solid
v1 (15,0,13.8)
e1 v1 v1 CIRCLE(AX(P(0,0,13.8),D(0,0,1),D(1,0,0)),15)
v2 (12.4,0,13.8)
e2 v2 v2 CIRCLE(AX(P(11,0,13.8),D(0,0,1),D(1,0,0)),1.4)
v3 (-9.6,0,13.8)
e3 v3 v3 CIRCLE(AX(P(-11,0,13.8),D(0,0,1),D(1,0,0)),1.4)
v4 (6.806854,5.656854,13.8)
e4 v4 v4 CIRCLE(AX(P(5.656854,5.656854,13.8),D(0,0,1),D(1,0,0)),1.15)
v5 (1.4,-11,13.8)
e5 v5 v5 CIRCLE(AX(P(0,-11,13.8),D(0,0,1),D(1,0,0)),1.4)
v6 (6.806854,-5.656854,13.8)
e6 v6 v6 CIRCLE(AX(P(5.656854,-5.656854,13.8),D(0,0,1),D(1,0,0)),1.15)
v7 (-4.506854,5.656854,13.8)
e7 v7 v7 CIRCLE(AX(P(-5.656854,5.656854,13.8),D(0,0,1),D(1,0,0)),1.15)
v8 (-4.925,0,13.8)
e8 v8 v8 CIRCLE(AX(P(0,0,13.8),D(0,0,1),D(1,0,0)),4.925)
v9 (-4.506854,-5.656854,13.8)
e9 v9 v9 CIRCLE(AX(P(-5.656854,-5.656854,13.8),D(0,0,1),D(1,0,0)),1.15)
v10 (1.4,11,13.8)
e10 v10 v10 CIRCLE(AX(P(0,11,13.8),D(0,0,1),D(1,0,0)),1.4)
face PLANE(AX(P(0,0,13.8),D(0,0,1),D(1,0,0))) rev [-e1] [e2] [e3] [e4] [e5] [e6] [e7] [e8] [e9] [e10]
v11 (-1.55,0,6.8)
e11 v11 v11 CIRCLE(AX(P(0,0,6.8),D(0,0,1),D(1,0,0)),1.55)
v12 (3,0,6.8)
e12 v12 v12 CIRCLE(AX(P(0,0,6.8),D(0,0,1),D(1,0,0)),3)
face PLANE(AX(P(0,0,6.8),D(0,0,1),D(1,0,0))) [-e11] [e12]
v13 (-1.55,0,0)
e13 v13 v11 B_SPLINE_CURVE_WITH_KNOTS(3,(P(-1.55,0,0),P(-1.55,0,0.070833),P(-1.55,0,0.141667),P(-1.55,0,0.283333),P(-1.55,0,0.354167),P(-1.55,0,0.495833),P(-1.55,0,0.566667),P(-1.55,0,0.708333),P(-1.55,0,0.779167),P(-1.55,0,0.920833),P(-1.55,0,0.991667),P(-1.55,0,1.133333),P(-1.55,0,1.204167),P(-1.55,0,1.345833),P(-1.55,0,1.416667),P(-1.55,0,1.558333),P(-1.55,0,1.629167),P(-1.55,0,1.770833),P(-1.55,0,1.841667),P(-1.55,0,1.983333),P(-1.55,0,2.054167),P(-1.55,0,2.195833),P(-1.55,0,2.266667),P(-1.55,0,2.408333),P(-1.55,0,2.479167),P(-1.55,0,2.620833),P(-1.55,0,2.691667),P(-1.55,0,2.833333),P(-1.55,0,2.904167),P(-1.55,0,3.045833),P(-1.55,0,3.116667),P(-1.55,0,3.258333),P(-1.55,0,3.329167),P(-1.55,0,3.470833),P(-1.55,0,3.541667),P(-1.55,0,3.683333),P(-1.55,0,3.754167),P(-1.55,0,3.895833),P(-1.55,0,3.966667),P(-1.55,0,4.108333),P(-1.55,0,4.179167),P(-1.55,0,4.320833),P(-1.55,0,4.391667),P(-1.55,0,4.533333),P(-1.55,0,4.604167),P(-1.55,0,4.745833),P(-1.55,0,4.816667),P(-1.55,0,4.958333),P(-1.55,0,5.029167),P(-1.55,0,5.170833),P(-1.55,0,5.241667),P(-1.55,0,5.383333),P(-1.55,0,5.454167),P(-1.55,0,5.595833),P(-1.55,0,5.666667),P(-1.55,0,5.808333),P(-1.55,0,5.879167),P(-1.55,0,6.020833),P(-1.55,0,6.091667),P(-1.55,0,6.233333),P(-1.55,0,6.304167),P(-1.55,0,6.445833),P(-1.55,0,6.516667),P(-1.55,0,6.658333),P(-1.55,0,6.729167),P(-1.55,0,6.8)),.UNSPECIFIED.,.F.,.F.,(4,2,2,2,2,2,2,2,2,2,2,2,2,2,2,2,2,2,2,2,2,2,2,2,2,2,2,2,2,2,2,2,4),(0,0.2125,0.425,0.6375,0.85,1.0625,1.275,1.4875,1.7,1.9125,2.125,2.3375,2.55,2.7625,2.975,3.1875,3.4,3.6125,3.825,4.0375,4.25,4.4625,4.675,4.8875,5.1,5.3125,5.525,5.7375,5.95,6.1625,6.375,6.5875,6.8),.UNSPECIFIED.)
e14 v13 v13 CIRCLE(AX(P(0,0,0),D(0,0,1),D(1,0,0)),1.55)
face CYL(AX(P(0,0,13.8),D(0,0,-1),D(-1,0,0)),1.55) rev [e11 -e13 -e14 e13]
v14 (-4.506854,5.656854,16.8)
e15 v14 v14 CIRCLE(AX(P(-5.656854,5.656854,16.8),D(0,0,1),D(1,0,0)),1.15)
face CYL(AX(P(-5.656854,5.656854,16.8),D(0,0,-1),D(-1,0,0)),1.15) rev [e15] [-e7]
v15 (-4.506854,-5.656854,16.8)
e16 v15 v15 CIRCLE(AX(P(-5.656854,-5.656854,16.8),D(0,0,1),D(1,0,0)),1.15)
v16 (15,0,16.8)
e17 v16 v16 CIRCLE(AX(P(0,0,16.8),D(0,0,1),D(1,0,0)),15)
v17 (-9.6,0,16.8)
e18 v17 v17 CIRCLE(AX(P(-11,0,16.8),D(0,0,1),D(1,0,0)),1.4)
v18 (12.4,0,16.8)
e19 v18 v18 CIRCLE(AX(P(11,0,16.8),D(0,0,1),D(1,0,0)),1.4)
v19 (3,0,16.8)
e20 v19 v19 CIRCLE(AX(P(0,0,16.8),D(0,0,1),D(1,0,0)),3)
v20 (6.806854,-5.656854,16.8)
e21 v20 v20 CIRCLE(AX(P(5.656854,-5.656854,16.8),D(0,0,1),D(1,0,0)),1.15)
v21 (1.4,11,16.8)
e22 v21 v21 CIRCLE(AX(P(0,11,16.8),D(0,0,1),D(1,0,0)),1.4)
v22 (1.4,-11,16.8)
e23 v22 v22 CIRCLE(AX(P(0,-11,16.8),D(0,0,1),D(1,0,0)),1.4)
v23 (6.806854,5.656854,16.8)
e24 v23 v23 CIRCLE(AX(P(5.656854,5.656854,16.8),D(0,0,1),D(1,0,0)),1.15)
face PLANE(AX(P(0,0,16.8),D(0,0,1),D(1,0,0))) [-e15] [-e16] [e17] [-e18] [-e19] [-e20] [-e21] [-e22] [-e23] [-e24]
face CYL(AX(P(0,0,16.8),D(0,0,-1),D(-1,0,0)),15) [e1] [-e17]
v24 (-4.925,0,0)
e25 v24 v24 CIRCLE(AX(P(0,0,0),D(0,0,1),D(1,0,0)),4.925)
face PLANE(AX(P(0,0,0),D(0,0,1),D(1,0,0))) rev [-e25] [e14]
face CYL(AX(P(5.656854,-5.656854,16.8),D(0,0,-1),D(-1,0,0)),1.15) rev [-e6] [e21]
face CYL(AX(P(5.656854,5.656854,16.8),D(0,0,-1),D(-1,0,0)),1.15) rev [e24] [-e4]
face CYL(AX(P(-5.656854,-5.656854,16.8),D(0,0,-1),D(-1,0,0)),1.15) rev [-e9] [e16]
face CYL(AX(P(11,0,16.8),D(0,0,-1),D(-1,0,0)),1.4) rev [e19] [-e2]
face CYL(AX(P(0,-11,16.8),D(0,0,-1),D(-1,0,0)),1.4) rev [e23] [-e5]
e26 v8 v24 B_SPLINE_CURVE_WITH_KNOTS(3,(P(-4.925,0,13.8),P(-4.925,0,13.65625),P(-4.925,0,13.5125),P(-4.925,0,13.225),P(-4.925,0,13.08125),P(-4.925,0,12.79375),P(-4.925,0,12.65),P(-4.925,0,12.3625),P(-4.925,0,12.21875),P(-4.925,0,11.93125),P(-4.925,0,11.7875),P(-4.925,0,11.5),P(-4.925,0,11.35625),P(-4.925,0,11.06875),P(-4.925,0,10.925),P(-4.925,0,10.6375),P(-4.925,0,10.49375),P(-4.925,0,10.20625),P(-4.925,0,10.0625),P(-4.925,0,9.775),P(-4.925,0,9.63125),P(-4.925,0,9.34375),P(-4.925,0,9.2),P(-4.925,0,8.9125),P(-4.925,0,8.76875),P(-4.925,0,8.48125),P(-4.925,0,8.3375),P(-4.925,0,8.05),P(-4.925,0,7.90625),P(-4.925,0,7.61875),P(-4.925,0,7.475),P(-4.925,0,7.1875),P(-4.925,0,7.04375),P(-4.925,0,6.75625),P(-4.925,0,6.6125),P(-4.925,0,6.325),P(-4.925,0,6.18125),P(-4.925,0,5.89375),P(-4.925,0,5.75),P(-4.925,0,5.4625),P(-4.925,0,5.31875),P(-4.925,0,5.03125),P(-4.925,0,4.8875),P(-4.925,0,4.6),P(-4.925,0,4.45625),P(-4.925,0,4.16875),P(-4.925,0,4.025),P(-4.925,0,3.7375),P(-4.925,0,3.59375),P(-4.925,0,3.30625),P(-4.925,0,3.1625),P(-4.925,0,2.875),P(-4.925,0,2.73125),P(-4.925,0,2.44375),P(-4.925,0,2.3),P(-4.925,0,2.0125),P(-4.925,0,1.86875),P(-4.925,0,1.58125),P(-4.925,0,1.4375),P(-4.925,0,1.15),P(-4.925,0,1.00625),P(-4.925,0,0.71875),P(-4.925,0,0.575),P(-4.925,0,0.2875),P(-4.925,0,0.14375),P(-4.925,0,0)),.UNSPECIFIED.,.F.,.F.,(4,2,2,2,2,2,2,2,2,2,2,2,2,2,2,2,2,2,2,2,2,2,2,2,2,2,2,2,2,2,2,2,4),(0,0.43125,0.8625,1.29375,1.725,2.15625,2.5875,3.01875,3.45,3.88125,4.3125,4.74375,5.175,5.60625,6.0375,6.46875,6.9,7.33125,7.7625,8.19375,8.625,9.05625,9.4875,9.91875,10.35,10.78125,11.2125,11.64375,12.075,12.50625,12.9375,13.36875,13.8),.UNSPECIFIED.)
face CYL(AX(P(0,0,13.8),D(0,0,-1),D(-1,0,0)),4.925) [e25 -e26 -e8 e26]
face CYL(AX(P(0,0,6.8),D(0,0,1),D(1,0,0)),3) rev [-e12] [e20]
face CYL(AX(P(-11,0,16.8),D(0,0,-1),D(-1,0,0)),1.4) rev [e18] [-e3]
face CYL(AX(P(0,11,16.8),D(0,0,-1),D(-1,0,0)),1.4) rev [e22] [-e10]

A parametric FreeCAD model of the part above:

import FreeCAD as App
import Part
import Sketcher
Q = App.Units.Quantity

doc = App.newDocument("Part")
body = doc.addObject("PartDesign::Body", "Body")

# Sketch on XY plane
sketch1 = body.newObject("Sketcher::SketchObject", "Sketch")
sketch1.AttachmentSupport = (doc.getObject("XY_Plane"), [""])
sketch1.MapMode = "FlatFace"
sketch1.addGeometry([
    Part.Circle(App.Vector(0, 0, 0), App.Vector(0, 0, 1), 4.9),
    Part.Circle(App.Vector(0, 0, 0), App.Vector(0, 0, 1), 1.6),
], False)
sketch1.addConstraint([
    Sketcher.Constraint("Coincident", 0, 3, -1, 1),
    Sketcher.Constraint("Coincident", 1, 3, -1, 1),
    Sketcher.Constraint("Diameter", 1, Q("3.1 mm")),
    Sketcher.Constraint("Diameter", 0, Q("9.85 mm")),
])
pad1 = body.newObject("PartDesign::Pad", "Pad")
pad1.Profile = sketch1
pad1.Length = 13.8

# Sketch on XY plane
sketch2 = body.newObject("Sketcher::SketchObject", "Sketch001")
sketch2.AttachmentSupport = (doc.getObject("XY_Plane"), [""])
sketch2.MapMode = "FlatFace"
sketch2.AttachmentOffset = App.Placement(App.Vector(0, 0, 13.8), App.Rotation())
sketch2.addGeometry([
    Part.Circle(App.Vector(0, 0, 0), App.Vector(0, 0, 1), 15),  # 0
    Part.Circle(App.Vector(-5.7, -5.7, 0), App.Vector(0, 0, 1), 1.1),  # 1
    Part.Circle(App.Vector(0, -11, 0), App.Vector(0, 0, 1), 1.4),  # 2
    Part.Circle(App.Vector(5.7, -5.7, 0), App.Vector(0, 0, 1), 1.1),  # 3
    Part.Circle(App.Vector(-11, 0, 0), App.Vector(0, 0, 1), 1.4),  # 4
    Part.Circle(App.Vector(-5.7, 5.7, 0), App.Vector(0, 0, 1), 1.1),  # 5
    Part.Circle(App.Vector(0, 0, 0), App.Vector(0, 0, 1), 1.6),  # 6
    Part.Circle(App.Vector(5.7, 5.7, 0), App.Vector(0, 0, 1), 1.1),  # 7
    Part.Circle(App.Vector(11, 0, 0), App.Vector(0, 0, 1), 1.4),  # 8
    Part.Circle(App.Vector(0, 11, 0), App.Vector(0, 0, 1), 1.4),  # 9
], False)
sketch2.addConstraint([
    Sketcher.Constraint("Coincident", 0, 3, -1, 1),
    Sketcher.Constraint("Coincident", 6, 3, -1, 1),
    Sketcher.Constraint("Equal", 1, 3),
    Sketcher.Constraint("Equal", 2, 4),
    Sketcher.Constraint("Equal", 3, 5),
    Sketcher.Constraint("Equal", 5, 7),
    Sketcher.Constraint("Equal", 4, 8),
    Sketcher.Constraint("Equal", 8, 9),
    Sketcher.Constraint("Symmetric", 3, 3, 5, 3, -1, 1),
    Sketcher.Constraint("Symmetric", 1, 3, 7, 3, -1, 1),
    Sketcher.Constraint("Symmetric", 4, 3, 8, 3, -1, 1),
    Sketcher.Constraint("Symmetric", 2, 3, 9, 3, -1, 1),
    Sketcher.Constraint("Symmetric", 1, 3, 3, 3, -2),
    Sketcher.Constraint("PointOnObject", 2, 3, -2),
    Sketcher.Constraint("PointOnObject", 4, 3, -1),
    Sketcher.Constraint("Diameter", 0, Q("30 mm")),
    Sketcher.Constraint("Diameter", 1, Q("2.3 mm")),
    Sketcher.Constraint("Diameter", 2, Q("2.8 mm")),
    Sketcher.Constraint("Diameter", 6, Q("3.1 mm")),
    Sketcher.Constraint("DistanceY", 2, 3, -1, 1, Q("11 mm")),
    Sketcher.Constraint("DistanceX", 4, 3, -1, 1, Q("11 mm")),
    Sketcher.Constraint("DistanceX", 1, 3, 3, 3, Q("11.313708 mm")),
    Sketcher.Constraint("DistanceY", 1, 3, 5, 3, Q("11.313708 mm")),
])
pad2 = body.newObject("PartDesign::Pad", "Pad001")
pad2.Profile = sketch2
pad2.Length = 3

# Sketch on XY plane
sketch3 = body.newObject("Sketcher::SketchObject", "Sketch002")
sketch3.AttachmentSupport = (doc.getObject("XY_Plane"), [""])
sketch3.MapMode = "FlatFace"
sketch3.AttachmentOffset = App.Placement(App.Vector(0, 0, 16.8), App.Rotation())
sketch3.addGeometry(Part.Circle(App.Vector(0, 0, 0), App.Vector(0, 0, 1), 3), False)
sketch3.addConstraint([
    Sketcher.Constraint("Coincident", 0, 3, -1, 1),
    Sketcher.Constraint("Diameter", 0, Q("6 mm")),
])
pocket1 = body.newObject("PartDesign::Pocket", "Pocket")
pocket1.Profile = sketch3
pocket1.Length = 10

doc.recompute()
